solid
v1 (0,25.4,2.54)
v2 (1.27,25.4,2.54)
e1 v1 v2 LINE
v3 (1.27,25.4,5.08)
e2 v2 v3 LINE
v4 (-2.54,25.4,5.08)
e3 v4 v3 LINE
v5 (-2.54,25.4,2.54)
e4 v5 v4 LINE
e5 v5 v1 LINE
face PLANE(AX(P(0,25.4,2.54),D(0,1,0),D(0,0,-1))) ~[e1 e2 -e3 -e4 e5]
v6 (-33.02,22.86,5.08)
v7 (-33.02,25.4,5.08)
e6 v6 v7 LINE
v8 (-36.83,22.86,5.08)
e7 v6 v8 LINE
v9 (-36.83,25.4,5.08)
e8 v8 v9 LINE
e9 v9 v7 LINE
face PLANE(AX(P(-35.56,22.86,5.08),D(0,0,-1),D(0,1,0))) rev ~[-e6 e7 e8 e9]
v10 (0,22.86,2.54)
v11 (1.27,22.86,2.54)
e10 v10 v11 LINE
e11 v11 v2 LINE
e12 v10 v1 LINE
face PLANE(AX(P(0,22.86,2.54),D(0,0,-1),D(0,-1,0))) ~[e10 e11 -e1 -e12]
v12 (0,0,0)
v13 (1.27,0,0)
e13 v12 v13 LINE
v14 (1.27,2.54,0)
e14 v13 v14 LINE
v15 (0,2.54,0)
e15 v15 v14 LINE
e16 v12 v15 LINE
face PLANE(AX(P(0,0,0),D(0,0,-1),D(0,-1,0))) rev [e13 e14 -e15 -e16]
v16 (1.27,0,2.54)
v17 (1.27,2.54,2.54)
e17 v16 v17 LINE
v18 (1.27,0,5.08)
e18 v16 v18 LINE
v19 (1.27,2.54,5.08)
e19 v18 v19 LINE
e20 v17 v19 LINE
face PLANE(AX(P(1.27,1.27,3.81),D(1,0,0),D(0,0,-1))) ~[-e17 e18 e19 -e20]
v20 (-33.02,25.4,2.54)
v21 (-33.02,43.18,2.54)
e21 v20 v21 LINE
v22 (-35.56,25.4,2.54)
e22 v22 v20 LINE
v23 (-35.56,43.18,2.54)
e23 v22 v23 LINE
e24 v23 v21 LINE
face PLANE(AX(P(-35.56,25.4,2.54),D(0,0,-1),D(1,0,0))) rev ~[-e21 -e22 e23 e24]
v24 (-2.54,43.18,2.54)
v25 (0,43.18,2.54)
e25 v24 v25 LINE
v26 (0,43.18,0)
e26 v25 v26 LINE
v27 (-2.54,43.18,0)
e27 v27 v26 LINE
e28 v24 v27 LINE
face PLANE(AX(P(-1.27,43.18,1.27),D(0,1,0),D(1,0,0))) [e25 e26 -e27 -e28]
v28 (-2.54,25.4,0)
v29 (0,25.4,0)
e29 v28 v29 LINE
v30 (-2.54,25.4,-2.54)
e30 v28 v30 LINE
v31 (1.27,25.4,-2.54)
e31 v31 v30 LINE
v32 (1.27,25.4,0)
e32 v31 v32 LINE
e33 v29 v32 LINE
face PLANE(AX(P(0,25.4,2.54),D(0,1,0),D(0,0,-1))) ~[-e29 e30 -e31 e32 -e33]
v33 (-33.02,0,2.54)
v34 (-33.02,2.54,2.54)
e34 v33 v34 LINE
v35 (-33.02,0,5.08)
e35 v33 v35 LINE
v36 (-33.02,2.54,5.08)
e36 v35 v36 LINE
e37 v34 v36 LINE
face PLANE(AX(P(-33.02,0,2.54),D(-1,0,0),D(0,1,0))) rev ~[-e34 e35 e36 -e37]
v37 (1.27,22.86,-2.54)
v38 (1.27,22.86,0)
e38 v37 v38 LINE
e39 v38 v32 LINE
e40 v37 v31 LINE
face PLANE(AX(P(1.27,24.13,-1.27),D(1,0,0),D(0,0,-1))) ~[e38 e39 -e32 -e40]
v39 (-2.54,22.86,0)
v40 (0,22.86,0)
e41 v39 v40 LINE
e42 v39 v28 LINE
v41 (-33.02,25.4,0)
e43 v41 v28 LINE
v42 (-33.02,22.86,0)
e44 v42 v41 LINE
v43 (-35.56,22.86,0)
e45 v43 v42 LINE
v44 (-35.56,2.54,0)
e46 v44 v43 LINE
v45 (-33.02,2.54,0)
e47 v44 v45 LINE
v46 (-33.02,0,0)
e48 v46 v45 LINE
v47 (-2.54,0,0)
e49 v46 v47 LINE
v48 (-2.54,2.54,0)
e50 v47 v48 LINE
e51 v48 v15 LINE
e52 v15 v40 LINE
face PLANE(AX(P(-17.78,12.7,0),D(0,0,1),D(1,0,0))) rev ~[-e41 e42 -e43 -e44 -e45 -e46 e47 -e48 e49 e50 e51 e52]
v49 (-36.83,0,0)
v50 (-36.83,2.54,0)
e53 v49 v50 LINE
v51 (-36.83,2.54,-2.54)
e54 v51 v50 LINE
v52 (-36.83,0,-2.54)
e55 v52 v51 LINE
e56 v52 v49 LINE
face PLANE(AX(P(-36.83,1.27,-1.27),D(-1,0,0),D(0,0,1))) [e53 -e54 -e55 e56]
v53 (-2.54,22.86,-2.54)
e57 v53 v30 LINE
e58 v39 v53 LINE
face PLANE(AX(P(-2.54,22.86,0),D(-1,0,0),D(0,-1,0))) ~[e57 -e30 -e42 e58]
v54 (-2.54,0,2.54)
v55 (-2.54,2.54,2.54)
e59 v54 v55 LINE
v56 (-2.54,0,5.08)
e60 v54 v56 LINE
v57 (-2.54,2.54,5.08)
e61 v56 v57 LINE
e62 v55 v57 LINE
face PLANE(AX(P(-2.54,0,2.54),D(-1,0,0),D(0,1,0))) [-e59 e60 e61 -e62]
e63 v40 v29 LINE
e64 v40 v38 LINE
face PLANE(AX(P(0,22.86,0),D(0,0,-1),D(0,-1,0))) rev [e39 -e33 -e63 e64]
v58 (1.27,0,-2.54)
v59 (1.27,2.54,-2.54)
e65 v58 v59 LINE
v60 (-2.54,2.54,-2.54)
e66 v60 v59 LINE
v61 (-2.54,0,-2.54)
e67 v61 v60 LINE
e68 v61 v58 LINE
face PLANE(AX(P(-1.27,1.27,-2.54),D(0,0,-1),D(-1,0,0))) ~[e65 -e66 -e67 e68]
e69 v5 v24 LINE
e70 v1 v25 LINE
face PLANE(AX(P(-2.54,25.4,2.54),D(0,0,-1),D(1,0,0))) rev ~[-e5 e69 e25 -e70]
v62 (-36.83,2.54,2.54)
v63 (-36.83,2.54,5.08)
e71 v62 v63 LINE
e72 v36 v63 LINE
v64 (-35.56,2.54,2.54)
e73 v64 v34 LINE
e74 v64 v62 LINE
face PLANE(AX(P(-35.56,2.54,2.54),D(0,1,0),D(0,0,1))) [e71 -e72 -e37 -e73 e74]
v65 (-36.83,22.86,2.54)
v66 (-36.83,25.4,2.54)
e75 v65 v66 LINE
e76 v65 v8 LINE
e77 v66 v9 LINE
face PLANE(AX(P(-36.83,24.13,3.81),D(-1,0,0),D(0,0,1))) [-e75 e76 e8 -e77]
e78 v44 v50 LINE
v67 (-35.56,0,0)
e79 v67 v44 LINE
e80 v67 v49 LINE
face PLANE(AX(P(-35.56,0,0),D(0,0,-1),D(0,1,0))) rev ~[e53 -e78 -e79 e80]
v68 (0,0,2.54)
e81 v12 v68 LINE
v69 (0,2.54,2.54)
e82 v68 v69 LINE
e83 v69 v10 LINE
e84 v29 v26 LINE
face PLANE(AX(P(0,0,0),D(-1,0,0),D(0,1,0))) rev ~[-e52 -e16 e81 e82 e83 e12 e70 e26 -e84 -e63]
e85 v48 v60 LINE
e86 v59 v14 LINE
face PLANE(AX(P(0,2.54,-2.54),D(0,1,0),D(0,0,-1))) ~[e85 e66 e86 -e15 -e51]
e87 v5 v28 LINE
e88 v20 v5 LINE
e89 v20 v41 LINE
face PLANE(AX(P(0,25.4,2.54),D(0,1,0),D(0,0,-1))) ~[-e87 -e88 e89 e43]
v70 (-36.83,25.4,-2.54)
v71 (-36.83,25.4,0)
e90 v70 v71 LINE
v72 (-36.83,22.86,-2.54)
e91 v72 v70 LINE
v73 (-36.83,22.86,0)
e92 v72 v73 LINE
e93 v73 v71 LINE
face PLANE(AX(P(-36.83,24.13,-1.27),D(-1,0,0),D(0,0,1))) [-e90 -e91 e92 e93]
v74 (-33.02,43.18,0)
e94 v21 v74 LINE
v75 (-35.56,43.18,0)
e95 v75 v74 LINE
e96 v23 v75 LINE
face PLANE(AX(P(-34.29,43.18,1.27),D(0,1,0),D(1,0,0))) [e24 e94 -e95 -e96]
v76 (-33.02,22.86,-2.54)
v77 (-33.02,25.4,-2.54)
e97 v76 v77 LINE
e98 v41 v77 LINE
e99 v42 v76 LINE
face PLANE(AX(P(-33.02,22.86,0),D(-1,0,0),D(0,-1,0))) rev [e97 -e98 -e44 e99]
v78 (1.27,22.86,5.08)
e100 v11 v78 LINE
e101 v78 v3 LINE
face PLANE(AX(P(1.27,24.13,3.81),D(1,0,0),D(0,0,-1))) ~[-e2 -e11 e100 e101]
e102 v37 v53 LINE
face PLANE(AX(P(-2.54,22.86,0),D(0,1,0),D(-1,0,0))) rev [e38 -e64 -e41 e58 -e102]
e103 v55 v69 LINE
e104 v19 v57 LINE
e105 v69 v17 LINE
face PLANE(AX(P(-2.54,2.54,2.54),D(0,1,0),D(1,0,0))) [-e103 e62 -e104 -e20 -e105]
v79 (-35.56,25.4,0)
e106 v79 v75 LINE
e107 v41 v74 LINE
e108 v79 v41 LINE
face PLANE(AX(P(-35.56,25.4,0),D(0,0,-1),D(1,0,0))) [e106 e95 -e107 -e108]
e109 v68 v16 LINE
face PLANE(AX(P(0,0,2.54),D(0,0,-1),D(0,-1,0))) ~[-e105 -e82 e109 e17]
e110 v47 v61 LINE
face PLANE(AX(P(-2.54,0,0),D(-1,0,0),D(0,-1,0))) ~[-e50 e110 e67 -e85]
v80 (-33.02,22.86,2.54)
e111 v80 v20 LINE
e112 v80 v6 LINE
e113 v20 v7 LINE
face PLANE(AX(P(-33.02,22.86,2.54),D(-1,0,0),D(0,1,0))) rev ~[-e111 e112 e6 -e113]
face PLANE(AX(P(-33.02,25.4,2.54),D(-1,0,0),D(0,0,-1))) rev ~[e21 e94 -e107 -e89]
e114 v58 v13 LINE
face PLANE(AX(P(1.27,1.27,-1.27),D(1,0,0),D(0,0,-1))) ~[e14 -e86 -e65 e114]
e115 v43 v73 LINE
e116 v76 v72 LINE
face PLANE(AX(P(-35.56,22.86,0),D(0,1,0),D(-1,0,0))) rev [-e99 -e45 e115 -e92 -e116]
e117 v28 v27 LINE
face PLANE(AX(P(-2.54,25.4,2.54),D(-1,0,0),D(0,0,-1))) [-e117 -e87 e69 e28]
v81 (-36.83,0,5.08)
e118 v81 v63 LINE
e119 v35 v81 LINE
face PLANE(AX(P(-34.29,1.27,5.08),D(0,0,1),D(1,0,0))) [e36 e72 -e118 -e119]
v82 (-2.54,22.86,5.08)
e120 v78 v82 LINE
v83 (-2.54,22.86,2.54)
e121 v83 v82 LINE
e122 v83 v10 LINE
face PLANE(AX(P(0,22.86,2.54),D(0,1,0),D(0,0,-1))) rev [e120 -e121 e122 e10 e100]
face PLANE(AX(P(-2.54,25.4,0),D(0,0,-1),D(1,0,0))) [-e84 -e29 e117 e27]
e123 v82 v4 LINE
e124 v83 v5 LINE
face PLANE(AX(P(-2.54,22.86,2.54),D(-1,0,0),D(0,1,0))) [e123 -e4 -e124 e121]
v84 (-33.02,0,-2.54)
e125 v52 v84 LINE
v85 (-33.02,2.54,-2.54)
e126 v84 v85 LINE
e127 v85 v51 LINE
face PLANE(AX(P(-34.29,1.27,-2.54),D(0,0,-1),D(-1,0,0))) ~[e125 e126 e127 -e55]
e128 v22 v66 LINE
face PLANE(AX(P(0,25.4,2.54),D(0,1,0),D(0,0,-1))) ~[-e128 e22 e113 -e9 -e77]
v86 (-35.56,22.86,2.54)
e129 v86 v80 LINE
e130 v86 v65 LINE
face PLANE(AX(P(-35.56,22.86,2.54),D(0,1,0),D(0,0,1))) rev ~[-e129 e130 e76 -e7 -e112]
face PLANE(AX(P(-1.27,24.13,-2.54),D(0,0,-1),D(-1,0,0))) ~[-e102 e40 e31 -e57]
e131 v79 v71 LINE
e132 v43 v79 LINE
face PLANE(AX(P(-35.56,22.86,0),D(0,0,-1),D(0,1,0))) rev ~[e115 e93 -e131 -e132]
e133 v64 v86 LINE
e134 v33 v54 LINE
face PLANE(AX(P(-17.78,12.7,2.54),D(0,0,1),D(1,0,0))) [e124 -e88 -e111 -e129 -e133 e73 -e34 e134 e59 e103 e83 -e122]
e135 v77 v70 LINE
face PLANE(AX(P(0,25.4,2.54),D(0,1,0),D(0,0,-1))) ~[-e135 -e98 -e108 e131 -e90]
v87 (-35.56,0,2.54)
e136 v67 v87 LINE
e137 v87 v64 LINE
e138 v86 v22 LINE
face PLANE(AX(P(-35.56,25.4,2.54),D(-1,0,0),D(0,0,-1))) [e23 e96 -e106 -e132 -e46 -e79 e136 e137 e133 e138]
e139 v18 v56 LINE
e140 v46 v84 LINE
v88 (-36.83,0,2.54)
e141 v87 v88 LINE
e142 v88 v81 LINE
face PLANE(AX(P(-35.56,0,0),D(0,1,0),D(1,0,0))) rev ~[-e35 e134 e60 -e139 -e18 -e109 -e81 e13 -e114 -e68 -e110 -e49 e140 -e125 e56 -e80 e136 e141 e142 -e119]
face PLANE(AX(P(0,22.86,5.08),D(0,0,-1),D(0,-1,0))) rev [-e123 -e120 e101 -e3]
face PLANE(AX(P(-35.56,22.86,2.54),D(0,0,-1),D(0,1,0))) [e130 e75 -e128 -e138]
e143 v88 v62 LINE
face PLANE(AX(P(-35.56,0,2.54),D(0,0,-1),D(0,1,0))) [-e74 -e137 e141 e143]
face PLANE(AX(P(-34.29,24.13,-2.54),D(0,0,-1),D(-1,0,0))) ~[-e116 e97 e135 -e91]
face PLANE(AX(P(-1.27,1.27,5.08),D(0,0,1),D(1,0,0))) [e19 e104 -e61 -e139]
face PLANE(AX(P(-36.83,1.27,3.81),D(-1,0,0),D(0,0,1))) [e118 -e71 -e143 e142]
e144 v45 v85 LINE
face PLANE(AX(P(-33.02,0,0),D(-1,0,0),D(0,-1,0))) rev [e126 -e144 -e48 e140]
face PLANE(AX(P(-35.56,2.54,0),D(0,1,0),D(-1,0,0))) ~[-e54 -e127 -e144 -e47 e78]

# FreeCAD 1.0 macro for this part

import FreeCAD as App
import Part
import Sketcher
from FreeCAD import Vector
Q = App.Units.Quantity

doc = App.newDocument("Part")
body = doc.addObject("PartDesign::Body", "Body")

sketch1 = doc.addObject("Sketcher::SketchObject", "Sketch")
body.addObject(sketch1)
sketch1.AttachmentSupport = (doc.XY_Plane, [""])
sketch1.MapMode = "FlatFace"
sketch1.addGeometry([
    Part.LineSegment(Vector(-36, 25, 0), Vector(-36, 0, 0)),
    Part.LineSegment(Vector(-36, 0, 0), Vector(0, 0, 0)),
    Part.LineSegment(Vector(0, 0, 0), Vector(0, 25, 0)),
    Part.LineSegment(Vector(0, 25, 0), Vector(-36, 25, 0)),
], False)
sketch1.addConstraint([
    Sketcher.Constraint("Coincident", 0, 2, 1, 1),
    Sketcher.Constraint("Coincident", 1, 2, 2, 1),
    Sketcher.Constraint("Coincident", 2, 2, 3, 1),
    Sketcher.Constraint("Coincident", 3, 2, 0, 1),
    Sketcher.Constraint("Vertical", 0),
    Sketcher.Constraint("Horizontal", 1),
    Sketcher.Constraint("Vertical", 2),
    Sketcher.Constraint("Horizontal", 3),
    Sketcher.Constraint("Coincident", 1, 2, -1, 1),
    Sketcher.Constraint("DistanceY", 0, 2, 0, 1, Q("1 in")),
    Sketcher.Constraint("DistanceX", 1, 1, 1, 2, Q("1.4 in")),
])
pad1 = doc.addObject("PartDesign::Pad", "Pad")
body.addObject(pad1)
pad1.Profile = sketch1
pad1.Length = Q("0.1 in")

sketch2 = doc.addObject("Sketcher::SketchObject", "Sketch001")
body.addObject(sketch2)
sketch2.AttachmentSupport = (doc.XY_Plane, [""])
sketch2.MapMode = "FlatFace"
sketch2.AttachmentOffset = App.Placement(Vector(0, 0, 0.1 * 25.4), App.Rotation())
sketch2.addGeometry([
    Part.LineSegment(Vector(-35.6, 25.4, 0), Vector(-35.6, 22.9, 0)),
    Part.LineSegment(Vector(-35.6, 22.9, 0), Vector(-33, 22.9, 0)),
    Part.LineSegment(Vector(-33, 22.9, 0), Vector(-33, 25.4, 0)),
    Part.LineSegment(Vector(-33, 25.4, 0), Vector(-35.6, 25.4, 0)),
    Part.LineSegment(Vector(-2.5, 25.4, 0), Vector(-2.5, 22.9, 0)),
    Part.LineSegment(Vector(-2.5, 22.9, 0), Vector(0, 22.9, 0)),
    Part.LineSegment(Vector(0, 22.9, 0), Vector(0, 25.4, 0)),
    Part.LineSegment(Vector(0, 25.4, 0), Vector(-2.5, 25.4, 0)),
    Part.LineSegment(Vector(-2.5, 2.5, 0), Vector(-2.5, 0, 0)),
    Part.LineSegment(Vector(-2.5, 0, 0), Vector(0, 0, 0)),
    Part.LineSegment(Vector(0, 0, 0), Vector(0, 2.5, 0)),
    Part.LineSegment(Vector(0, 2.5, 0), Vector(-2.5, 2.5, 0)),
    Part.LineSegment(Vector(-35.6, 2.5, 0), Vector(-35.6, 0, 0)),
    Part.LineSegment(Vector(-35.6, 0, 0), Vector(-33, 0, 0)),
    Part.LineSegment(Vector(-33, 0, 0), Vector(-33, 2.5, 0)),
    Part.LineSegment(Vector(-33, 2.5, 0), Vector(-35.6, 2.5, 0)),
], False)
sketch2.addConstraint([
    Sketcher.Constraint("Coincident", 0, 2, 1, 1),
    Sketcher.Constraint("Coincident", 1, 2, 2, 1),
    Sketcher.Constraint("Coincident", 2, 2, 3, 1),
    Sketcher.Constraint("Coincident", 3, 2, 0, 1),
    Sketcher.Constraint("Coincident", 4, 2, 5, 1),
    Sketcher.Constraint("Coincident", 5, 2, 6, 1),
    Sketcher.Constraint("Coincident", 6, 2, 7, 1),
    Sketcher.Constraint("Coincident", 7, 2, 4, 1),
    Sketcher.Constraint("Coincident", 8, 2, 9, 1),
    Sketcher.Constraint("Coincident", 9, 2, 10, 1),
    Sketcher.Constraint("Coincident", 10, 2, 11, 1),
    Sketcher.Constraint("Coincident", 11, 2, 8, 1),
    Sketcher.Constraint("Coincident", 12, 2, 13, 1),
    Sketcher.Constraint("Coincident", 13, 2, 14, 1),
    Sketcher.Constraint("Coincident", 14, 2, 15, 1),
    Sketcher.Constraint("Coincident", 15, 2, 12, 1),
    Sketcher.Constraint("Vertical", 0),
    Sketcher.Constraint("Horizontal", 1),
    Sketcher.Constraint("Vertical", 2),
    Sketcher.Constraint("Horizontal", 3),
    Sketcher.Constraint("Vertical", 4),
    Sketcher.Constraint("Horizontal", 5),
    Sketcher.Constraint("Vertical", 6),
    Sketcher.Constraint("Horizontal", 7),
    Sketcher.Constraint("Vertical", 8),
    Sketcher.Constraint("Horizontal", 9),
    Sketcher.Constraint("Vertical", 10),
    Sketcher.Constraint("Horizontal", 11),
    Sketcher.Constraint("Vertical", 12),
    Sketcher.Constraint("Horizontal", 13),
    Sketcher.Constraint("Vertical", 14),
    Sketcher.Constraint("Horizontal", 15),
    Sketcher.Constraint("Coincident", 9, 2, -1, 1),
    Sketcher.Constraint("PointOnObject", 5, 2, -2),
    Sketcher.Constraint("PointOnObject", 12, 2, -1),
    Sketcher.Constraint("Horizontal", 1, 2, 4, 2),
    Sketcher.Constraint("Horizontal", 3, 2, 6, 2),
    Sketcher.Constraint("Horizontal", 11, 2, 14, 2),
    Sketcher.Constraint("Vertical", 7, 2, 8, 2),
    Sketcher.Constraint("Vertical", 3, 2, 12, 2),
    Sketcher.Constraint("Vertical", 2, 2, 13, 2),
    Sketcher.Constraint("Equal", 3, 5),
    Sketcher.Constraint("Equal", 15, 0),
    Sketcher.Constraint("Equal", 6, 8),
    Sketcher.Constraint("DistanceX", 1, 1, 1, 2, Q("0.1 in")),
    Sketcher.Constraint("DistanceY", -1, 1, 2, 2, Q("1 in")),
    Sketcher.Constraint("DistanceX", 0, 2, -1, 1, Q("1.4 in")),
])
pad2 = doc.addObject("PartDesign::Pad", "Pad001")
body.addObject(pad2)
pad2.Profile = sketch2
pad2.Length = Q("0.1 in")
doc.recompute()

datumplane = doc.addObject("PartDesign::Plane", "DatumPlane")
body.addObject(datumplane)
datumplane.AttachmentSupport = (doc.XY_Plane, [""])
datumplane.MapMode = "FlatFace"
datumplane.AttachmentOffset = App.Placement(Vector(0, 0, 0.05 * 25.4), App.Rotation())
mirrored = doc.addObject("PartDesign::Mirrored", "Mirrored")
body.addObject(mirrored)
mirrored.Originals = [pad2]
mirrored.MirrorPlane = (datumplane, [""])
body.Tip = mirrored

sketch3 = doc.addObject("Sketcher::SketchObject", "Sketch002")
body.addObject(sketch3)
sketch3.AttachmentSupport = (doc.YZ_Plane, [""])
sketch3.MapMode = "FlatFace"
sketch3.AttachmentOffset = App.Placement(Vector(0, 0, -1.4 * 25.4), App.Rotation())
sketch3.addGeometry([
    Part.LineSegment(Vector(25.4, 2.5, 0), Vector(22.9, 2.5, 0)),
    Part.LineSegment(Vector(22.9, 2.5, 0), Vector(22.9, 5.1, 0)),
    Part.LineSegment(Vector(22.9, 5.1, 0), Vector(25.4, 5.1, 0)),
    Part.LineSegment(Vector(25.4, 5.1, 0), Vector(25.4, 2.5, 0)),
    Part.LineSegment(Vector(25.4, -2.5, 0), Vector(22.9, -2.5, 0)),
    Part.LineSegment(Vector(22.9, -2.5, 0), Vector(22.9, 0, 0)),
    Part.LineSegment(Vector(22.9, 0, 0), Vector(25.4, 0, 0)),
    Part.LineSegment(Vector(25.4, 0, 0), Vector(25.4, -2.5, 0)),
    Part.LineSegment(Vector(2.5, 2.5, 0), Vector(0, 2.5, 0)),
    Part.LineSegment(Vector(0, 2.5, 0), Vector(0, 5.1, 0)),
    Part.LineSegment(Vector(0, 5.1, 0), Vector(2.5, 5.1, 0)),
    Part.LineSegment(Vector(2.5, 5.1, 0), Vector(2.5, 2.5, 0)),
    Part.LineSegment(Vector(2.5, -2.5, 0), Vector(0, -2.5, 0)),
    Part.LineSegment(Vector(0, -2.5, 0), Vector(0, 0, 0)),
    Part.LineSegment(Vector(0, 0, 0), Vector(2.5, 0, 0)),
    Part.LineSegment(Vector(2.5, 0, 0), Vector(2.5, -2.5, 0)),
], False)
sketch3.addConstraint([
    Sketcher.Constraint("Coincident", 0, 2, 1, 1),
    Sketcher.Constraint("Coincident", 1, 2, 2, 1),
    Sketcher.Constraint("Coincident", 2, 2, 3, 1),
    Sketcher.Constraint("Coincident", 3, 2, 0, 1),
    Sketcher.Constraint("Coincident", 4, 2, 5, 1),
    Sketcher.Constraint("Coincident", 5, 2, 6, 1),
    Sketcher.Constraint("Coincident", 6, 2, 7, 1),
    Sketcher.Constraint("Coincident", 7, 2, 4, 1),
    Sketcher.Constraint("Coincident", 8, 2, 9, 1),
    Sketcher.Constraint("Coincident", 9, 2, 10, 1),
    Sketcher.Constraint("Coincident", 10, 2, 11, 1),
    Sketcher.Constraint("Coincident", 11, 2, 8, 1),
    Sketcher.Constraint("Coincident", 12, 2, 13, 1),
    Sketcher.Constraint("Coincident", 13, 2, 14, 1),
    Sketcher.Constraint("Coincident", 14, 2, 15, 1),
    Sketcher.Constraint("Coincident", 15, 2, 12, 1),
    Sketcher.Constraint("Horizontal", 0),
    Sketcher.Constraint("Vertical", 1),
    Sketcher.Constraint("Horizontal", 2),
    Sketcher.Constraint("Vertical", 3),
    Sketcher.Constraint("Horizontal", 4),
    Sketcher.Constraint("Vertical", 5),
    Sketcher.Constraint("Horizontal", 6),
    Sketcher.Constraint("Vertical", 7),
    Sketcher.Constraint("Horizontal", 8),
    Sketcher.Constraint("Vertical", 9),
    Sketcher.Constraint("Horizontal", 10),
    Sketcher.Constraint("Vertical", 11),
    Sketcher.Constraint("Horizontal", 12),
    Sketcher.Constraint("Vertical", 13),
    Sketcher.Constraint("Horizontal", 14),
    Sketcher.Constraint("Vertical", 15),
    Sketcher.Constraint("Coincident", 13, 2, -1, 1),
    Sketcher.Constraint("Symmetric", 8, 2, 12, 2, -1, 1),
    Sketcher.Constraint("Symmetric", 0, 2, 4, 2, -1),
    Sketcher.Constraint("PointOnObject", 5, 2, -1),
    Sketcher.Constraint("Horizontal", 3, 2, 8, 2),
    Sketcher.Constraint("Horizontal", 2, 2, 9, 2),
    Sketcher.Constraint("Vertical", 3, 2, 6, 2),
    Sketcher.Constraint("Vertical", 11, 2, 14, 2),
    Sketcher.Constraint("Equal", 6, 8),
    Sketcher.Constraint("Equal", 14, 1),
    Sketcher.Constraint("Equal", 3, 5),
    Sketcher.Constraint("DistanceX", 0, 2, 0, 1, Q("0.1 in")),
    Sketcher.Constraint("DistanceX", -1, 1, 2, 2, Q("1 in")),
])
pad3 = doc.addObject("PartDesign::Pad", "Pad002")
body.addObject(pad3)
pad3.Profile = sketch3
pad3.Length = Q("0.05 in")
pad3.Reversed = True
doc.recompute()

datumplane2 = doc.addObject("PartDesign::Plane", "DatumPlane001")
body.addObject(datumplane2)
datumplane2.AttachmentSupport = (doc.YZ_Plane, [""])
datumplane2.MapMode = "FlatFace"
datumplane2.AttachmentOffset = App.Placement(Vector(0, 0, -0.7 * 25.4), App.Rotation())
mirrored2 = doc.addObject("PartDesign::Mirrored", "Mirrored001")
body.addObject(mirrored2)
mirrored2.Originals = [pad3]
mirrored2.MirrorPlane = (datumplane2, [""])
body.Tip = mirrored2

sketch4 = doc.addObject("Sketcher::SketchObject", "Sketch003")
body.addObject(sketch4)
sketch4.AttachmentSupport = (doc.XZ_Plane, [""])
sketch4.MapMode = "FlatFace"
sketch4.AttachmentOffset = App.Placement(Vector(0, 0, -1 * 25.4), App.Rotation())
sketch4.addGeometry([
    Part.LineSegment(Vector(-35.6, 0, 0), Vector(-35.6, 2.5, 0)),
    Part.LineSegment(Vector(-35.6, 2.5, 0), Vector(-33, 2.5, 0)),
    Part.LineSegment(Vector(-33, 2.5, 0), Vector(-33, 0, 0)),
    Part.LineSegment(Vector(-33, 0, 0), Vector(-35.6, 0, 0)),
    Part.LineSegment(Vector(-2.5, 0, 0), Vector(-2.5, 2.5, 0)),
    Part.LineSegment(Vector(-2.5, 2.5, 0), Vector(0, 2.5, 0)),
    Part.LineSegment(Vector(0, 2.5, 0), Vector(0, 0, 0)),
    Part.LineSegment(Vector(0, 0, 0), Vector(-2.5, 0, 0)),
], False)
sketch4.addConstraint([
    Sketcher.Constraint("Coincident", 0, 2, 1, 1),
    Sketcher.Constraint("Coincident", 1, 2, 2, 1),
    Sketcher.Constraint("Coincident", 2, 2, 3, 1),
    Sketcher.Constraint("Coincident", 3, 2, 0, 1),
    Sketcher.Constraint("Coincident", 4, 2, 5, 1),
    Sketcher.Constraint("Coincident", 5, 2, 6, 1),
    Sketcher.Constraint("Coincident", 6, 2, 7, 1),
    Sketcher.Constraint("Coincident", 7, 2, 4, 1),
    Sketcher.Constraint("Vertical", 0),
    Sketcher.Constraint("Horizontal", 1),
    Sketcher.Constraint("Vertical", 2),
    Sketcher.Constraint("Horizontal", 3),
    Sketcher.Constraint("Vertical", 4),
    Sketcher.Constraint("Horizontal", 5),
    Sketcher.Constraint("Vertical", 6),
    Sketcher.Constraint("Horizontal", 7),
    Sketcher.Constraint("Coincident", 6, 2, -1, 1),
    Sketcher.Constraint("PointOnObject", 2, 2, -1),
    Sketcher.Constraint("Horizontal", 1, 2, 4, 2),
    Sketcher.Constraint("Equal", 3, 5),
    Sketcher.Constraint("Equal", 7, 0),
    Sketcher.Constraint("DistanceX", 1, 1, 1, 2, Q("0.1 in")),
    Sketcher.Constraint("DistanceX", 0, 2, -1, 1, Q("1.4 in")),
])
pad4 = doc.addObject("PartDesign::Pad", "Pad003")
body.addObject(pad4)
pad4.Profile = sketch4
pad4.Length = Q("0.7 in")
pad4.Reversed = True

doc.recompute()
